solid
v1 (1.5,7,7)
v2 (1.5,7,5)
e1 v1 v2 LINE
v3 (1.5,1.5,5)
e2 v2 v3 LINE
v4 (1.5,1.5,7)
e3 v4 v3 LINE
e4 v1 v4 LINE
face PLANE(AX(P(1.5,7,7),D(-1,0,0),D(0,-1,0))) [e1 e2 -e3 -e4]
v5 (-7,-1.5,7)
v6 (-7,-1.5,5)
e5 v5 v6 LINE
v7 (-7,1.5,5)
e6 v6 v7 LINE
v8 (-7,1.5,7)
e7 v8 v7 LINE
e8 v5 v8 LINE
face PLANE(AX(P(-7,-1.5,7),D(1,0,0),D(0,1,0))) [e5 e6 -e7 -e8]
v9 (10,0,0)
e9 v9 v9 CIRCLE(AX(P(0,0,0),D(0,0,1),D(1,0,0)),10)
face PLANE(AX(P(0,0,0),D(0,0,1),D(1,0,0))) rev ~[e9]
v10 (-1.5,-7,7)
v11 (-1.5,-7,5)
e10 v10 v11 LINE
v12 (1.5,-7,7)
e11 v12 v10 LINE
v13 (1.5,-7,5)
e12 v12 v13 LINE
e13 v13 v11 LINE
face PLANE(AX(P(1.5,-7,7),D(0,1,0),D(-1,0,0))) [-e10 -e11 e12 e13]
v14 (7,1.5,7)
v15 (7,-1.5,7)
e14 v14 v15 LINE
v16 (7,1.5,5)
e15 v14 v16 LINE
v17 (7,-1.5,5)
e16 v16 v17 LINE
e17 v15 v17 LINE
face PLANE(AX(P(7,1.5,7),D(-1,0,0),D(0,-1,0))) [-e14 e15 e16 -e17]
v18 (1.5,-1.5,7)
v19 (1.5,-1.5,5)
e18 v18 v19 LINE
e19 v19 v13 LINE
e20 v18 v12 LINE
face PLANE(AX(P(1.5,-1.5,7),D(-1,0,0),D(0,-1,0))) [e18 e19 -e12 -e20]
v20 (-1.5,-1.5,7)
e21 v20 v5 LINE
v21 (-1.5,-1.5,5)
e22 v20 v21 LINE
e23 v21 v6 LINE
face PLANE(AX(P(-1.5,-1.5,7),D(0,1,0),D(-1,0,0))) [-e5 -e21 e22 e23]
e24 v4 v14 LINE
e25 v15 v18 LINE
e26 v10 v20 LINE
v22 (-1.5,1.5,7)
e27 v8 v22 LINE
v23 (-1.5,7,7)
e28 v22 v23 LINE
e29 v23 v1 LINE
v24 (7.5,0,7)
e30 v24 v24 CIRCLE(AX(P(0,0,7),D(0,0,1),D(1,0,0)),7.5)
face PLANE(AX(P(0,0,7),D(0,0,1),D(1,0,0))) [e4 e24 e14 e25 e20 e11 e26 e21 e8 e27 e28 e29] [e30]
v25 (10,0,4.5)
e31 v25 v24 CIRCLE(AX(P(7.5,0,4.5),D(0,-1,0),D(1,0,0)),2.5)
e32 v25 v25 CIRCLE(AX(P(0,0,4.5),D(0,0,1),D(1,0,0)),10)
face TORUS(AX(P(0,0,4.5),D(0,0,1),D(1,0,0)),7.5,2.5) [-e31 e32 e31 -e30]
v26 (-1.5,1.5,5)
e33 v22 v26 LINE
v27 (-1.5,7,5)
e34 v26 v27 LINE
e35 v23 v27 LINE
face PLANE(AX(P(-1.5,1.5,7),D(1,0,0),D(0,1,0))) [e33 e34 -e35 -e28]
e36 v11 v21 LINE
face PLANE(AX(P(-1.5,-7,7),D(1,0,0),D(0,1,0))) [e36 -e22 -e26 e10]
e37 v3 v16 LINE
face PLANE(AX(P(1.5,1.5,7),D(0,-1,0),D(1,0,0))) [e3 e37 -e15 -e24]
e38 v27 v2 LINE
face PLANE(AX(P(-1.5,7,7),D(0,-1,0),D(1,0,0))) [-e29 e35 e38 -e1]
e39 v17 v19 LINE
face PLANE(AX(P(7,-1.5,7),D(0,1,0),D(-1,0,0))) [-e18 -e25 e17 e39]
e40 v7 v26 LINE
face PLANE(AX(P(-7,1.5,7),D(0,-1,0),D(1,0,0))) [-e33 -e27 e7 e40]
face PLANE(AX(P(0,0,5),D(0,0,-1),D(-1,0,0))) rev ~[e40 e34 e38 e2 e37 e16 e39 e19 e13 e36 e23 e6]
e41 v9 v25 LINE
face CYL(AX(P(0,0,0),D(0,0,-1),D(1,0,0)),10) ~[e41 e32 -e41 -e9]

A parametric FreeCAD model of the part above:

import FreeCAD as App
import Part
import Sketcher
from FreeCAD import Vector


def edges_at(feature, points):
    """Names of the edges that pass closest to the given points."""
    edges = feature.Shape.Edges
    near = lambda p: min(range(len(edges)), key=lambda i: edges[i].distToShape(Part.Vertex(*p))[0])
    return sorted({f"Edge{near(p) + 1}" for p in points})

doc = App.newDocument("Part")
body = doc.addObject("PartDesign::Body", "Body")

sketch1 = body.newObject("Sketcher::SketchObject", "Sketch")
sketch1.AttachmentSupport = (doc.getObject("XY_Plane"), [""])
sketch1.MapMode = "FlatFace"
sketch1.addGeometry(Part.Circle(Vector(0, 0, 0), Vector(0, 0, 1), 10), False)
sketch1.addConstraint(Sketcher.Constraint("Coincident", 0, 3, -1, 1))
sketch1.addConstraint(Sketcher.Constraint("Diameter", 0, 20.0))
pad1 = body.newObject("PartDesign::Pad", "Pad")
pad1.Profile = sketch1
pad1.Length = 7

sketch2 = body.newObject("Sketcher::SketchObject", "Sketch001")
sketch2.AttachmentSupport = (doc.getObject("XY_Plane"), [""])
sketch2.MapMode = "FlatFace"
sketch2.AttachmentOffset = App.Placement(Vector(0, 0, 7), App.Rotation())
sketch2.addGeometry(Part.LineSegment(Vector(1.5, 7, 0), Vector(-1.5, 7, 0)), False)
sketch2.addGeometry(Part.LineSegment(Vector(-1.5, 7, 0), Vector(-1.5, 1.5, 0)), False)
sketch2.addGeometry(Part.LineSegment(Vector(-1.5, 1.5, 0), Vector(-7, 1.5, 0)), False)
sketch2.addGeometry(Part.LineSegment(Vector(-7, 1.5, 0), Vector(-7, -1.5, 0)), False)
sketch2.addGeometry(Part.LineSegment(Vector(-7, -1.5, 0), Vector(-1.5, -1.5, 0)), False)
sketch2.addGeometry(Part.LineSegment(Vector(-1.5, -1.5, 0), Vector(-1.5, -7, 0)), False)
sketch2.addGeometry(Part.LineSegment(Vector(-1.5, -7, 0), Vector(1.5, -7, 0)), False)
sketch2.addGeometry(Part.LineSegment(Vector(1.5, -7, 0), Vector(1.5, -1.5, 0)), False)
sketch2.addGeometry(Part.LineSegment(Vector(1.5, -1.5, 0), Vector(7, -1.5, 0)), False)
sketch2.addGeometry(Part.LineSegment(Vector(7, -1.5, 0), Vector(7, 1.5, 0)), False)
sketch2.addGeometry(Part.LineSegment(Vector(7, 1.5, 0), Vector(1.5, 1.5, 0)), False)
sketch2.addGeometry(Part.LineSegment(Vector(1.5, 1.5, 0), Vector(1.5, 7, 0)), False)
sketch2.addConstraint(Sketcher.Constraint("Coincident", 0, 2, 1, 1))
sketch2.addConstraint(Sketcher.Constraint("Coincident", 1, 2, 2, 1))
sketch2.addConstraint(Sketcher.Constraint("Coincident", 2, 2, 3, 1))
sketch2.addConstraint(Sketcher.Constraint("Coincident", 3, 2, 4, 1))
sketch2.addConstraint(Sketcher.Constraint("Coincident", 4, 2, 5, 1))
sketch2.addConstraint(Sketcher.Constraint("Coincident", 5, 2, 6, 1))
sketch2.addConstraint(Sketcher.Constraint("Coincident", 6, 2, 7, 1))
sketch2.addConstraint(Sketcher.Constraint("Coincident", 7, 2, 8, 1))
sketch2.addConstraint(Sketcher.Constraint("Coincident", 8, 2, 9, 1))
sketch2.addConstraint(Sketcher.Constraint("Coincident", 9, 2, 10, 1))
sketch2.addConstraint(Sketcher.Constraint("Coincident", 10, 2, 11, 1))
sketch2.addConstraint(Sketcher.Constraint("Coincident", 11, 2, 0, 1))
sketch2.addConstraint(Sketcher.Constraint("Horizontal", 0))
sketch2.addConstraint(Sketcher.Constraint("Vertical", 1))
sketch2.addConstraint(Sketcher.Constraint("Horizontal", 2))
sketch2.addConstraint(Sketcher.Constraint("Vertical", 3))
sketch2.addConstraint(Sketcher.Constraint("Horizontal", 4))
sketch2.addConstraint(Sketcher.Constraint("Vertical", 5))
sketch2.addConstraint(Sketcher.Constraint("Horizontal", 6))
sketch2.addConstraint(Sketcher.Constraint("Vertical", 7))
sketch2.addConstraint(Sketcher.Constraint("Horizontal", 8))
sketch2.addConstraint(Sketcher.Constraint("Vertical", 9))
sketch2.addConstraint(Sketcher.Constraint("Horizontal", 10))
sketch2.addConstraint(Sketcher.Constraint("Vertical", 11))
sketch2.addConstraint(Sketcher.Constraint("Symmetric", 0, 2, 6, 2, -1, 1))
sketch2.addConstraint(Sketcher.Constraint("Symmetric", 2, 2, 8, 2, -1, 1))
sketch2.addConstraint(Sketcher.Constraint("Symmetric", 4, 2, 10, 2, -1, 1))
sketch2.addConstraint(Sketcher.Constraint("Symmetric", 4, 2, 7, 2, -2))
sketch2.addConstraint(Sketcher.Constraint("Equal", 10, 1))
sketch2.addConstraint(Sketcher.Constraint("Equal", 6, 3))
sketch2.addConstraint(Sketcher.Constraint("DistanceX", 0, 2, 0, 1, 3.0))
sketch2.addConstraint(Sketcher.Constraint("DistanceX", 2, 2, 2, 1, 5.5))
pocket1 = body.newObject("PartDesign::Pocket", "Pocket")
pocket1.Profile = sketch2
pocket1.Length = 2
doc.recompute()

fillet = body.newObject("PartDesign::Fillet", "Fillet")
fillet.Base = (pocket1, edges_at(pocket1, [(-10, 0, 7)]))
fillet.Radius = 2.5

doc.recompute()
